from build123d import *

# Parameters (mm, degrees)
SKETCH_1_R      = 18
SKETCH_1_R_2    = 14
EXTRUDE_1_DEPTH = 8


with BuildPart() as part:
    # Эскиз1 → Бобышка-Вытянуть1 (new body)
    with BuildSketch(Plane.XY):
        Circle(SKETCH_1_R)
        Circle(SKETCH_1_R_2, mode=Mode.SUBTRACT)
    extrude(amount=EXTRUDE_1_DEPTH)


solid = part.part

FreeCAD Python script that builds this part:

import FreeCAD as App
import Part
import Sketcher
from FreeCAD import Vector

doc = App.newDocument("Part")
body = doc.addObject("PartDesign::Body", "Body")

sketch1 = body.newObject("Sketcher::SketchObject", "Sketch")
sketch1.AttachmentSupport = (doc.getObject("XY_Plane"), [""])
sketch1.MapMode = "FlatFace"
sketch1.addGeometry([
    Part.Circle(Vector(0, 0, 0), Vector(0, 0, 1), 18),
    Part.Circle(Vector(0, 0, 0), Vector(0, 0, 1), 14),
], False)
sketch1.addConstraint([
    Sketcher.Constraint("Coincident", 0, 3, -1, 1),
    Sketcher.Constraint("Coincident", 1, 3, -1, 1),
    Sketcher.Constraint("Diameter", 0, 36.0),
    Sketcher.Constraint("Diameter", 1, 28.0),
])
pad1 = body.newObject("PartDesign::Pad", "Pad")
pad1.Profile = sketch1
pad1.Length = 8

doc.recompute()
